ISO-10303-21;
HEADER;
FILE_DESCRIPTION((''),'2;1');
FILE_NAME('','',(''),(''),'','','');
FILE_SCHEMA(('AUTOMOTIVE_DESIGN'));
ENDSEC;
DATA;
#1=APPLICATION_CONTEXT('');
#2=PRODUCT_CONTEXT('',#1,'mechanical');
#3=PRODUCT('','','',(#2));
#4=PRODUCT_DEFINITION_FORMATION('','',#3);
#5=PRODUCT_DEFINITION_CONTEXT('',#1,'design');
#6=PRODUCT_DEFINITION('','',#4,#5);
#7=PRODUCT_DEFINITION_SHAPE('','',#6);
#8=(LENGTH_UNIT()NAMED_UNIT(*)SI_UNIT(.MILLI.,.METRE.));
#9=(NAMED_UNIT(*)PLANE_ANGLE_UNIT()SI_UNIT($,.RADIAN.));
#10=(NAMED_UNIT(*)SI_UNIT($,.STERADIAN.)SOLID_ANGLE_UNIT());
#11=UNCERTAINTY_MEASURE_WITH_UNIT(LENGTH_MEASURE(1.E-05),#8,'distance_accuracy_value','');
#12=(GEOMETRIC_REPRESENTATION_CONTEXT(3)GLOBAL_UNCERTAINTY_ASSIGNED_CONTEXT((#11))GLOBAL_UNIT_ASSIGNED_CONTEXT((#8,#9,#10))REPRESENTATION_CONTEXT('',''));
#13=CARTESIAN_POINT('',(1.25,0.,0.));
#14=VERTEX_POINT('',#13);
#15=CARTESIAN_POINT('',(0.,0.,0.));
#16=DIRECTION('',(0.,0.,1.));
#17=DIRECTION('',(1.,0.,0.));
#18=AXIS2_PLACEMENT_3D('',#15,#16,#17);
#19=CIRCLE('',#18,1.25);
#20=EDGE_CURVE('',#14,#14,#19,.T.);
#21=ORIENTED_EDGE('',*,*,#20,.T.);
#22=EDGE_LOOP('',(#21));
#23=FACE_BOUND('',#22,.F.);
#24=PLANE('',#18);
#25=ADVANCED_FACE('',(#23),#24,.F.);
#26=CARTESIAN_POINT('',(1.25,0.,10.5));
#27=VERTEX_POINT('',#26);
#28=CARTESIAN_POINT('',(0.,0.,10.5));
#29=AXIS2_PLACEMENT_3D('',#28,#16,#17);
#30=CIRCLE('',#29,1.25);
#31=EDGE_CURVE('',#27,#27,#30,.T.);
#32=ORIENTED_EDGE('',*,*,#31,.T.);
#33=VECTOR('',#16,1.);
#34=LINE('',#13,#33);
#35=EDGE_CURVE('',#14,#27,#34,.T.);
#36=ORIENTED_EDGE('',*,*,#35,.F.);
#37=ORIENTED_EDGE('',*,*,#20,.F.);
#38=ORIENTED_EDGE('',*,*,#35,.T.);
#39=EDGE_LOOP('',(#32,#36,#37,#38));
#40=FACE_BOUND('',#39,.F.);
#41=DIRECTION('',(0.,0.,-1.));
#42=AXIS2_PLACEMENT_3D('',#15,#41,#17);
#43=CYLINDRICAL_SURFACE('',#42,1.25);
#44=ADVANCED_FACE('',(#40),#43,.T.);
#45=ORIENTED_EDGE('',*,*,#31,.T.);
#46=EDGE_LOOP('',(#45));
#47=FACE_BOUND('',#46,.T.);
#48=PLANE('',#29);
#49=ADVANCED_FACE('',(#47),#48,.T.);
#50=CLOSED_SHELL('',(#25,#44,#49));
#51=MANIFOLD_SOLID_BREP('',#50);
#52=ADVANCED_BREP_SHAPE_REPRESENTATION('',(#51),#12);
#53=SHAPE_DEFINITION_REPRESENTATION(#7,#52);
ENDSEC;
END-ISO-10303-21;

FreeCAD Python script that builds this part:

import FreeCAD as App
import Part
import Sketcher
Q = App.Units.Quantity

doc = App.newDocument("Part")
params = doc.addObject("Spreadsheet::Sheet", "Params")
for row, (alias, value) in enumerate([
    ("sketch1_diameter", "2.5 mm"),
    ("pad1_length", "10.5 mm"),
], start=1):
    params.set(f"A{row}", alias)
    params.set(f"B{row}", "=" + value)
    params.setAlias(f"B{row}", alias)

body = doc.addObject("PartDesign::Body", "Body")

sketch1 = body.newObject("Sketcher::SketchObject", "Sketch")
sketch1.AttachmentSupport = (doc.getObject("XY_Plane"), [""])
sketch1.MapMode = "FlatFace"
sketch1.addGeometry(Part.Circle(App.Vector(0, 0, 0), App.Vector(0, 0, 1), 1.2), False)
sketch1.addConstraint([
    Sketcher.Constraint("Coincident", 0, 3, -1, 1),
    Sketcher.Constraint("Diameter", 0, Q("2.5 mm")),
])
sketch1.setExpression("Constraints[1]", "Params.sketch1_diameter")
pad1 = body.newObject("PartDesign::Pad", "Pad")
pad1.Profile = sketch1
pad1.setExpression("Length", "Params.pad1_length")

doc.recompute()
